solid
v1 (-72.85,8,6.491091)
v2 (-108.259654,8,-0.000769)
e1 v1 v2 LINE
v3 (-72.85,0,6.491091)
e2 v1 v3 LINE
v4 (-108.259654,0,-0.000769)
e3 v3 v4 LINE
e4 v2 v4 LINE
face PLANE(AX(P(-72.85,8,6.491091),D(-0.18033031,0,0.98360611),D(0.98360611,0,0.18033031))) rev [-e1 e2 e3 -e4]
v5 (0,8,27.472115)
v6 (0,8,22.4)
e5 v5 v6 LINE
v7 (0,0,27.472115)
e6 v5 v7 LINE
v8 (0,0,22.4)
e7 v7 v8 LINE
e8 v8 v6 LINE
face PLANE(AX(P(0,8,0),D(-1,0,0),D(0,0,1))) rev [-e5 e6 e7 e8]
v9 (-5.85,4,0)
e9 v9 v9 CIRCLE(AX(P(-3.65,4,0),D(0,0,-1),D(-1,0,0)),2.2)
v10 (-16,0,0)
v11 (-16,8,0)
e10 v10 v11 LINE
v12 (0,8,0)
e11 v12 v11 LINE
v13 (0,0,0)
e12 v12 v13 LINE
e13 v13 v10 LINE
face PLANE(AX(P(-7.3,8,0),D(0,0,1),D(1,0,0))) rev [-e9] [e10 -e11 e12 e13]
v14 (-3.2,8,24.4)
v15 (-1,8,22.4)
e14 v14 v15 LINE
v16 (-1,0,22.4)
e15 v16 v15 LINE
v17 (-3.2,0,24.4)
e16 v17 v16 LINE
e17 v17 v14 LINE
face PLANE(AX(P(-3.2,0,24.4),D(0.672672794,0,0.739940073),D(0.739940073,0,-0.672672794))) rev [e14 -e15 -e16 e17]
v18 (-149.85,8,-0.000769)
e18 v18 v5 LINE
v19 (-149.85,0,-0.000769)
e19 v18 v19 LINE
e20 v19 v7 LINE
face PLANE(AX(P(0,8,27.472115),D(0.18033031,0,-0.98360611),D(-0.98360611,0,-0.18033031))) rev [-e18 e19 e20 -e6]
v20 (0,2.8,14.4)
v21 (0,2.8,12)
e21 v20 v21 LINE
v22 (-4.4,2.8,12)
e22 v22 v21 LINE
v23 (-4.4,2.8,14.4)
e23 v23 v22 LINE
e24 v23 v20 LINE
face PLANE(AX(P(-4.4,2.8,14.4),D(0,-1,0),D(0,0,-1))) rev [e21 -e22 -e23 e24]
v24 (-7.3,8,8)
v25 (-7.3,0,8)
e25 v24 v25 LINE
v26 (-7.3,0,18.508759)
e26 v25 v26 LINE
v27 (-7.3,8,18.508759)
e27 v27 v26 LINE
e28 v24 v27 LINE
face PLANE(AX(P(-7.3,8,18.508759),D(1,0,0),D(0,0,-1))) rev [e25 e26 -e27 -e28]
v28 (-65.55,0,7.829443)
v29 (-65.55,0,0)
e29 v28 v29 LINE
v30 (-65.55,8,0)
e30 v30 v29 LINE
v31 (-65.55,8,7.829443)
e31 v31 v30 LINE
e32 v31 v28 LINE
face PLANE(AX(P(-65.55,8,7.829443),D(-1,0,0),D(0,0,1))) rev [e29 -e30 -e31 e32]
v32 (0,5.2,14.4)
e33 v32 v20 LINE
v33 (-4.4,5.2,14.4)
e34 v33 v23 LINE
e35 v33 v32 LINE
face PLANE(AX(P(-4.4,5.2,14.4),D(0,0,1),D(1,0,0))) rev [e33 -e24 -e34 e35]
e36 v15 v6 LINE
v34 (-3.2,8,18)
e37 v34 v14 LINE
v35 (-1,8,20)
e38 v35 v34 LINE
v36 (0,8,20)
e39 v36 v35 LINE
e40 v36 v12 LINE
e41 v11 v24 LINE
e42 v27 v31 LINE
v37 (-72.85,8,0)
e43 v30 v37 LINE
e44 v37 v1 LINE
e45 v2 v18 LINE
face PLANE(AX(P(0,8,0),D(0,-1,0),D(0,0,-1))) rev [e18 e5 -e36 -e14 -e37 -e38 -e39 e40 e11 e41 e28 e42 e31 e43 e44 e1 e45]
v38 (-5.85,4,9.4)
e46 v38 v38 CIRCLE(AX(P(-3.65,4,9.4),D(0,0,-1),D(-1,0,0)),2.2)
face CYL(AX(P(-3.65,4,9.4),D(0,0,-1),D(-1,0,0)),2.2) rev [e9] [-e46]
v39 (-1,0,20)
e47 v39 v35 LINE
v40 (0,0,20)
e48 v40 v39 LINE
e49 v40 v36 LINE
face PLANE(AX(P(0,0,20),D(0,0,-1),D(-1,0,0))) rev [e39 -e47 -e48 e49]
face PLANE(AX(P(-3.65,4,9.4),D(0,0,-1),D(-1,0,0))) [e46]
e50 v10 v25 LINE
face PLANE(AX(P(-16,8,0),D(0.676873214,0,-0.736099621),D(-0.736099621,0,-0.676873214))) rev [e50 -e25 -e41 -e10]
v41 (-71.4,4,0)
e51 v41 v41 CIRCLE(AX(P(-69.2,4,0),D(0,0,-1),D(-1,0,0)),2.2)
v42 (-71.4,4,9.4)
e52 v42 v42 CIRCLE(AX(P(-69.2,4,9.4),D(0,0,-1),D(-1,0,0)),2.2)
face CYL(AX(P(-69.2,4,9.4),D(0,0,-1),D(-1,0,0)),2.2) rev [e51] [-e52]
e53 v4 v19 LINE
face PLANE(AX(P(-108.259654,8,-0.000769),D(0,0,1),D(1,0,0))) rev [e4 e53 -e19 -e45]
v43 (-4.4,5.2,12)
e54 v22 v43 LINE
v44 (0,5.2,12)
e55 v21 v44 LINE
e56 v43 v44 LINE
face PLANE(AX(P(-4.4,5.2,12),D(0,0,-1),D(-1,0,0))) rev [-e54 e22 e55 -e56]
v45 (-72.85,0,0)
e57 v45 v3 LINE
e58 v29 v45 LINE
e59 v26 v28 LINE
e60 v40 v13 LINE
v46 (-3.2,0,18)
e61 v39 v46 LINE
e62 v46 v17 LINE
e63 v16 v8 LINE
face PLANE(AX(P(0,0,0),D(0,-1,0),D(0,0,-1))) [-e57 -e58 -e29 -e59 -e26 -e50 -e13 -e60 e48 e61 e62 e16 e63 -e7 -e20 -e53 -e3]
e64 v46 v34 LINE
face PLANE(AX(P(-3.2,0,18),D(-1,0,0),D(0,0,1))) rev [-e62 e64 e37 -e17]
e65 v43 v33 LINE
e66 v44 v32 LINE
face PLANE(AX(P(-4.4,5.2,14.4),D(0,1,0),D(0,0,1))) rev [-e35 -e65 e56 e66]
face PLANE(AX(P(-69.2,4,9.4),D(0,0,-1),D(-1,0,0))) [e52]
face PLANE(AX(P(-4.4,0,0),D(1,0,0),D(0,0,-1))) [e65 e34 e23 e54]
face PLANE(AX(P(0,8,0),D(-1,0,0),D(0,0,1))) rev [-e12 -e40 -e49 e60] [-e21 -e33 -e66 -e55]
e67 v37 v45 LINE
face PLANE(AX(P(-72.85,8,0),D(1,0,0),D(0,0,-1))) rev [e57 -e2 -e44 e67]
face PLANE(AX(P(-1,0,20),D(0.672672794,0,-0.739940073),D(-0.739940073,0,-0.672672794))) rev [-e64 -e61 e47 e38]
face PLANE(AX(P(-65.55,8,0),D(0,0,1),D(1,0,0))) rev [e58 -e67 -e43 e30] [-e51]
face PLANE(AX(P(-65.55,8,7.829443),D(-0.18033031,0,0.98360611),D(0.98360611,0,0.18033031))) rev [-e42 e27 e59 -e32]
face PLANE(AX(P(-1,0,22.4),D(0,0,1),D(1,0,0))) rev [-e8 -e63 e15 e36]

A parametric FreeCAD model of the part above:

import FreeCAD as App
import Part
import Sketcher

V = App.Vector
Q = App.Units.Quantity


def add_polygon(sketch, points):
    """Adds a closed chain of lines whose ends are joined by coincident constraints."""
    first, n = sketch.GeometryCount, len(points)
    for a, b in zip(points, points[1:] + points[:1]):
        sketch.addGeometry(Part.LineSegment(App.Vector(*a, 0), App.Vector(*b, 0)), False)
    for i in range(n):
        sketch.addConstraint(Sketcher.Constraint("Coincident", first + i, 2, first + (i + 1) % n, 1))

doc = App.newDocument("Part")
params = doc.addObject("Spreadsheet::Sheet", "Params")
for row, (alias, value) in enumerate([
    ("sketch1_width", "7.3 mm"),
    ("pad1_length", "8 mm"),
    ("sketch2_width", "1 mm"),
    ("sketch2_height", "6.4 mm"),
    ("sketch2_height2", "2.4 mm"),
    ("sketch3_width", "16 mm"),
    ("sketch3_height", "8 mm"),
    ("pad2_length", "8 mm"),
    ("sketch4_height", "8 mm"),
    ("sketch4_width", "8.7 mm"),
    ("sketch5_width", "2.4 mm"),
    ("pocket3_length", "4.4 mm"),
    ("sketch6_diameter", "4.4 mm"),
    ("pocket4_length", "9.4 mm"),
], start=1):
    params.set(f"A{row}", alias)
    params.set(f"B{row}", "=" + value)
    params.setAlias(f"B{row}", alias)

body = doc.addObject("PartDesign::Body", "Body")

sketch1 = body.newObject("Sketcher::SketchObject", "Sketch")
sketch1.AttachmentSupport = (doc.getObject("XZ_Plane"), [""])
sketch1.MapMode = "FlatFace"
add_polygon(sketch1, [(0, 27), (0, 0), (-7, 0), (-7, 19), (-66, 8), (-66, 0), (-73, 0), (-73, 6), (-108, 0), (-150, 0)])
sketch1.addConstraint(Sketcher.Constraint("Vertical", 0))
sketch1.addConstraint(Sketcher.Constraint("Horizontal", 1))
sketch1.addConstraint(Sketcher.Constraint("Vertical", 2))
sketch1.addConstraint(Sketcher.Constraint("Vertical", 4))
sketch1.addConstraint(Sketcher.Constraint("Horizontal", 5))
sketch1.addConstraint(Sketcher.Constraint("Vertical", 6))
sketch1.addConstraint(Sketcher.Constraint("Horizontal", 8))
sketch1.addConstraint(Sketcher.Constraint("Coincident", 0, 2, -1, 1))
sketch1.addConstraint(Sketcher.Constraint("PointOnObject", 4, 2, -1))
sketch1.addConstraint(Sketcher.Constraint("Parallel", 3, 7))
sketch1.addConstraint(Sketcher.Constraint("Parallel", 7, 9))
sketch1.addConstraint(Sketcher.Constraint("Equal", 1, 5))
sketch1.addConstraint(Sketcher.Constraint("DistanceX", 1, 2, 1, 1, Q("7.3 mm")))
sketch1.addConstraint(Sketcher.Constraint("DistanceX", 8, 2, 5, 2, Q("77 mm")))
sketch1.addConstraint(Sketcher.Constraint("DistanceX", 3, 2, -1, 1, Q("65.55 mm")))
sketch1.addConstraint(Sketcher.Constraint("DistanceY", 2, 1, 2, 2, Q("18.508759 mm")))
sketch1.addConstraint(Sketcher.Constraint("DistanceY", 6, 1, 6, 2, Q("6.491091 mm")))
sketch1.addConstraint(Sketcher.Constraint("Distance", 3, Q("59.22086 mm")))
sketch1.addConstraint(Sketcher.Constraint("Distance", 7, Q("35.999831 mm")))
sketch1.setExpression("Constraints[22]", "Params.sketch1_width")
pad1 = body.newObject("PartDesign::Pad", "Pad")
pad1.Profile = sketch1
pad1.setExpression("Length", "Params.pad1_length")
pad1.Reversed = True

sketch2 = body.newObject("Sketcher::SketchObject", "Sketch001")
sketch2.AttachmentSupport = (doc.getObject("XZ_Plane"), [""])
sketch2.MapMode = "FlatFace"
sketch2.AttachmentOffset = App.Placement(V(0, 0, -8), App.Rotation())
add_polygon(sketch2, [(0, 20), (-1, 20), (-3.2, 18), (-3.2, 24.4), (-1, 22.4), (0, 22.4)])
sketch2.addConstraint(Sketcher.Constraint("Horizontal", 0))
sketch2.addConstraint(Sketcher.Constraint("Vertical", 2))
sketch2.addConstraint(Sketcher.Constraint("Horizontal", 4))
sketch2.addConstraint(Sketcher.Constraint("Vertical", 5))
sketch2.addConstraint(Sketcher.Constraint("PointOnObject", 4, 2, -2))
sketch2.addConstraint(Sketcher.Constraint("Vertical", 0, 2, 3, 2))
sketch2.addConstraint(Sketcher.Constraint("Equal", 1, 3))
sketch2.addConstraint(Sketcher.Constraint("DistanceX", 0, 2, 0, 1, Q("1 mm")))
sketch2.addConstraint(Sketcher.Constraint("DistanceY", 2, 1, 2, 2, Q("6.4 mm")))
sketch2.addConstraint(Sketcher.Constraint("DistanceY", 5, 2, 5, 1, Q("2.4 mm")))
sketch2.addConstraint(Sketcher.Constraint("DistanceY", -1, 1, 0, 2, Q("20 mm")))
sketch2.addConstraint(Sketcher.Constraint("DistanceX", 1, 2, -1, 1, Q("3.2 mm")))
sketch2.setExpression("Constraints[13]", "Params.sketch2_width")
sketch2.setExpression("Constraints[14]", "Params.sketch2_height")
sketch2.setExpression("Constraints[15]", "Params.sketch2_height2")
pocket1 = body.newObject("PartDesign::Pocket", "Pocket")
pocket1.Profile = sketch2
pocket1.Type = "ThroughAll"
pocket1.Reversed = True

sketch3 = body.newObject("Sketcher::SketchObject", "Sketch002")
sketch3.AttachmentSupport = (doc.getObject("XZ_Plane"), [""])
sketch3.MapMode = "FlatFace"
sketch3.AttachmentOffset = App.Placement(V(0, 0, -8), App.Rotation())
add_polygon(sketch3, [(-16, 0), (-16, 8), (0, 8), (0, 0)])
sketch3.addConstraint(Sketcher.Constraint("Vertical", 0))
sketch3.addConstraint(Sketcher.Constraint("Horizontal", 1))
sketch3.addConstraint(Sketcher.Constraint("Vertical", 2))
sketch3.addConstraint(Sketcher.Constraint("Horizontal", 3))
sketch3.addConstraint(Sketcher.Constraint("Coincident", 2, 2, -1, 1))
sketch3.addConstraint(Sketcher.Constraint("DistanceX", 1, 1, 1, 2, Q("16 mm")))
sketch3.addConstraint(Sketcher.Constraint("DistanceY", 0, 1, 0, 2, Q("8 mm")))
sketch3.setExpression("Constraints[9]", "Params.sketch3_width")
sketch3.setExpression("Constraints[10]", "Params.sketch3_height")
pad2 = body.newObject("PartDesign::Pad", "Pad001")
pad2.Profile = sketch3
pad2.setExpression("Length", "Params.pad2_length")

sketch4 = body.newObject("Sketcher::SketchObject", "Sketch003")
sketch4.AttachmentSupport = (doc.getObject("XZ_Plane"), [""])
sketch4.MapMode = "FlatFace"
add_polygon(sketch4, [(-7, 8), (-16, 8), (-16, 0)])
sketch4.addConstraint(Sketcher.Constraint("Horizontal", 0))
sketch4.addConstraint(Sketcher.Constraint("Vertical", 1))
sketch4.addConstraint(Sketcher.Constraint("PointOnObject", 1, 2, -1))
sketch4.addConstraint(Sketcher.Constraint("DistanceY", 1, 2, 1, 1, Q("8 mm")))
sketch4.addConstraint(Sketcher.Constraint("DistanceX", 0, 2, 0, 1, Q("8.7 mm")))
sketch4.addConstraint(Sketcher.Constraint("DistanceX", 0, 2, -1, 1, Q("16 mm")))
sketch4.setExpression("Constraints[6]", "Params.sketch4_height")
sketch4.setExpression("Constraints[7]", "Params.sketch4_width")
pocket2 = body.newObject("PartDesign::Pocket", "Pocket001")
pocket2.Profile = sketch4
pocket2.Type = "ThroughAll"

sketch5 = body.newObject("Sketcher::SketchObject", "Sketch004")
sketch5.AttachmentSupport = (doc.getObject("YZ_Plane"), [""])
sketch5.MapMode = "FlatFace"
add_polygon(sketch5, [(5.2, 14.4), (2.8, 14.4), (2.8, 12), (5.2, 12)])
sketch5.addConstraint(Sketcher.Constraint("Horizontal", 0))
sketch5.addConstraint(Sketcher.Constraint("Vertical", 1))
sketch5.addConstraint(Sketcher.Constraint("Horizontal", 2))
sketch5.addConstraint(Sketcher.Constraint("Vertical", 3))
sketch5.addConstraint(Sketcher.Constraint("Equal", 2, 1))
sketch5.addConstraint(Sketcher.Constraint("DistanceX", 0, 2, 0, 1, Q("2.4 mm")))
sketch5.addConstraint(Sketcher.Constraint("DistanceY", -1, 1, 1, 2, Q("12 mm")))
sketch5.addConstraint(Sketcher.Constraint("DistanceX", -1, 1, 0, 2, Q("2.8 mm")))
sketch5.setExpression("Constraints[9]", "Params.sketch5_width")
pocket3 = body.newObject("PartDesign::Pocket", "Pocket002")
pocket3.Profile = sketch5
pocket3.setExpression("Length", "Params.pocket3_length")

sketch6 = body.newObject("Sketcher::SketchObject", "Sketch005")
sketch6.AttachmentSupport = (doc.getObject("XY_Plane"), [""])
sketch6.MapMode = "FlatFace"
sketch6.addGeometry(Part.Circle(V(-3.6, 4, 0), V(0, 0, 1), 2.2), False)
sketch6.addGeometry(Part.Circle(V(-69.2, 4, 0), V(0, 0, 1), 2.2), False)
sketch6.addConstraint(Sketcher.Constraint("Equal", 0, 1))
sketch6.addConstraint(Sketcher.Constraint("Horizontal", 0, 3, 1, 3))
sketch6.addConstraint(Sketcher.Constraint("Diameter", 0, Q("4.4 mm")))
sketch6.addConstraint(Sketcher.Constraint("DistanceY", -1, 1, 0, 3, Q("4 mm")))
sketch6.addConstraint(Sketcher.Constraint("DistanceX", 1, 3, -1, 1, Q("69.2 mm")))
sketch6.addConstraint(Sketcher.Constraint("DistanceX", 0, 3, -1, 1, Q("3.65 mm")))
sketch6.setExpression("Constraints[2]", "Params.sketch6_diameter")
pocket4 = body.newObject("PartDesign::Pocket", "Pocket003")
pocket4.Profile = sketch6
pocket4.setExpression("Length", "Params.pocket4_length")
pocket4.Reversed = True

doc.recompute()
